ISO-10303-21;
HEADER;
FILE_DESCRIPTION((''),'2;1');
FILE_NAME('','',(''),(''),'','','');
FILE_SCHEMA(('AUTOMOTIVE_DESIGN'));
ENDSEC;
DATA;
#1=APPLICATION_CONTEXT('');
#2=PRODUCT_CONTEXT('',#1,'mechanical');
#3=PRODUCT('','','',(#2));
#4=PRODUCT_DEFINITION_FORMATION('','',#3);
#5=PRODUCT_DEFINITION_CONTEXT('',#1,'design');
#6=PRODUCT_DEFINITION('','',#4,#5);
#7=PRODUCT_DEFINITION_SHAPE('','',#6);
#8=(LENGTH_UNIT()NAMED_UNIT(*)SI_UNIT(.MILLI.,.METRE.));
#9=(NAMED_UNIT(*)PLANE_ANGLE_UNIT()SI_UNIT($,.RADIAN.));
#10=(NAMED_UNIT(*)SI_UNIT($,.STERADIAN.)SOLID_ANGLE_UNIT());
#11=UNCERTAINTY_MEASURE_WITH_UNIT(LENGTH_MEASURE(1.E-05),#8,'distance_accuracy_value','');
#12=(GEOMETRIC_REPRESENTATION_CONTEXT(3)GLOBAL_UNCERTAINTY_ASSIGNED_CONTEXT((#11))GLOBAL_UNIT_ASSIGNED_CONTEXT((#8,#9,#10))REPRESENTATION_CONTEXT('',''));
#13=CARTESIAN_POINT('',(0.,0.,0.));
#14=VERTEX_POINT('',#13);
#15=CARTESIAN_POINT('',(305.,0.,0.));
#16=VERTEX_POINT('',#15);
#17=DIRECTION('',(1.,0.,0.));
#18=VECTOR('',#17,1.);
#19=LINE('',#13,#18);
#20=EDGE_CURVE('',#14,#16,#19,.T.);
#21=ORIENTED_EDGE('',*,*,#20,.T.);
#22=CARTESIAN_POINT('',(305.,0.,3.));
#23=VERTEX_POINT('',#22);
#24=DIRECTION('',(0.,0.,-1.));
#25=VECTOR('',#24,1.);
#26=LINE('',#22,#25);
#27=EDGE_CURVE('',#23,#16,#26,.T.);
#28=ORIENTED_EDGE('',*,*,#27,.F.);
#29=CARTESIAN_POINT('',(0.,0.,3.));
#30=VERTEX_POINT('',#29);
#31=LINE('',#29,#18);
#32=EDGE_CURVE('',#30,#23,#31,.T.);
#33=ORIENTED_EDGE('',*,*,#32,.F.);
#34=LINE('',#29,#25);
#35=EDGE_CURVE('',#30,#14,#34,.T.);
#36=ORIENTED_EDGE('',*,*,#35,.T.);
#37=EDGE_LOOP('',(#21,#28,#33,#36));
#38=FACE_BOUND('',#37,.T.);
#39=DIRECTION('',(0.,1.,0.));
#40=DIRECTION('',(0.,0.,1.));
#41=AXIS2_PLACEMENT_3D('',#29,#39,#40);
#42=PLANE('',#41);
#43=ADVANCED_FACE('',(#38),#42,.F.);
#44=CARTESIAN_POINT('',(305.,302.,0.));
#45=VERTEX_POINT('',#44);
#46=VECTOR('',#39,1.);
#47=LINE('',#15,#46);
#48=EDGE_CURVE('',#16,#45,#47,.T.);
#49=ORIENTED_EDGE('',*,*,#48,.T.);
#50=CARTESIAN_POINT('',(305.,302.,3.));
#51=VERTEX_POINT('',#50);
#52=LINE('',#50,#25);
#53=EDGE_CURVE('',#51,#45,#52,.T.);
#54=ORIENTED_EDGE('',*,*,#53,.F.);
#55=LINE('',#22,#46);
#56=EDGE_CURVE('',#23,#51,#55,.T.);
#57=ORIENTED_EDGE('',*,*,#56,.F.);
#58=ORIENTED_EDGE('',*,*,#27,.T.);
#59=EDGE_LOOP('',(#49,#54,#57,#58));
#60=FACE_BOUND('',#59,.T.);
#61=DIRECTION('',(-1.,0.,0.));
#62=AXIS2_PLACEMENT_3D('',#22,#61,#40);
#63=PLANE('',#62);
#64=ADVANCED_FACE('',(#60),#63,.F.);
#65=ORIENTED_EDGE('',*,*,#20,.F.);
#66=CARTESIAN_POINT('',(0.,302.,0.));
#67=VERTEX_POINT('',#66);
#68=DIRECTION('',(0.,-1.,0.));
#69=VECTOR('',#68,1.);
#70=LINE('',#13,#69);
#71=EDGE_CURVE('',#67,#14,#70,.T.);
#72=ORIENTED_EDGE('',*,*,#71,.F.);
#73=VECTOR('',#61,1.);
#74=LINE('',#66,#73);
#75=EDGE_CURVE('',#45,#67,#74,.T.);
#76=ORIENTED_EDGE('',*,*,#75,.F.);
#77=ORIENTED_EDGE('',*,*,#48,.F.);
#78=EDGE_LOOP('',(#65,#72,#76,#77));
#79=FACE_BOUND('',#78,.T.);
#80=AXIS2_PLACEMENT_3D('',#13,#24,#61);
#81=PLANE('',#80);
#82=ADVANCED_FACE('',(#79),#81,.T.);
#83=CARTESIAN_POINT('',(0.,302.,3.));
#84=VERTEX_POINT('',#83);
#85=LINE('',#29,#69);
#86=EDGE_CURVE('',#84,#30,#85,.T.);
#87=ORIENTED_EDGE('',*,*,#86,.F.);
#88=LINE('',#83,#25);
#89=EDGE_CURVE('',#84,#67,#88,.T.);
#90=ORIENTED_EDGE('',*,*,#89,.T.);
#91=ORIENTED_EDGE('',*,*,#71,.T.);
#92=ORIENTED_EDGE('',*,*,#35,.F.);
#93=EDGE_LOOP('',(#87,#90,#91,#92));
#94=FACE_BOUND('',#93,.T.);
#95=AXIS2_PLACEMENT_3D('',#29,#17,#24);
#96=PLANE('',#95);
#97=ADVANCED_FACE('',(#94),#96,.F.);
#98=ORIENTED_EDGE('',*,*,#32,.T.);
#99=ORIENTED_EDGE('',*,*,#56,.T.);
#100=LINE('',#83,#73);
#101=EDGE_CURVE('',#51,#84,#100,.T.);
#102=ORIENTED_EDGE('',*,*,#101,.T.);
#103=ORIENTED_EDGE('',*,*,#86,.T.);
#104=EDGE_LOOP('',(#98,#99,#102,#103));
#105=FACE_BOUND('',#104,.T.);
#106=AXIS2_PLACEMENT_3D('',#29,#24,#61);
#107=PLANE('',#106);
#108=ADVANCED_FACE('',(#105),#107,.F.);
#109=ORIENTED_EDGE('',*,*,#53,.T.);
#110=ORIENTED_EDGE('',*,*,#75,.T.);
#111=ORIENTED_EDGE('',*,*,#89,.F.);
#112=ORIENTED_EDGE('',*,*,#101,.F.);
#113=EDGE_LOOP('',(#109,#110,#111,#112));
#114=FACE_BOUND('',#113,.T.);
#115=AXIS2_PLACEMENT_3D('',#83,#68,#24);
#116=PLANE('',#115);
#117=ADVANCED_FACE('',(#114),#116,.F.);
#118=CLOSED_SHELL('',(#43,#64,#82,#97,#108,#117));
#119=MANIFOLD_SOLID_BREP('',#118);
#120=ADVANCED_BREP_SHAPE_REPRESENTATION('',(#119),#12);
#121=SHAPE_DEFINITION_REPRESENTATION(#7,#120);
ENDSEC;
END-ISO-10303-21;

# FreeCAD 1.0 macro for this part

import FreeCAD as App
import Part
import Sketcher
from FreeCAD import Vector
Q = App.Units.Quantity

doc = App.newDocument("Part")
params = doc.addObject("Spreadsheet::Sheet", "Params")
for row, (alias, value) in enumerate([
    ("sketch1_width", "305 mm"),
    ("sketch1_height", "302 mm"),
    ("pad1_length", "3 mm"),
], start=1):
    params.set(f"A{row}", alias)
    params.set(f"B{row}", "=" + value)
    params.setAlias(f"B{row}", alias)

body = doc.addObject("PartDesign::Body", "Body")

sketch1 = body.newObject("Sketcher::SketchObject", "Sketch")
sketch1.AttachmentSupport = (doc.getObject("XY_Plane"), [""])
sketch1.MapMode = "FlatFace"
sketch1.addGeometry(Part.LineSegment(Vector(0, 302, 0), Vector(0, 0, 0)), False)
sketch1.addGeometry(Part.LineSegment(Vector(0, 0, 0), Vector(305, 0, 0)), False)
sketch1.addGeometry(Part.LineSegment(Vector(305, 0, 0), Vector(305, 302, 0)), False)
sketch1.addGeometry(Part.LineSegment(Vector(305, 302, 0), Vector(0, 302, 0)), False)
sketch1.addConstraint(Sketcher.Constraint("Coincident", 0, 2, 1, 1))
sketch1.addConstraint(Sketcher.Constraint("Coincident", 1, 2, 2, 1))
sketch1.addConstraint(Sketcher.Constraint("Coincident", 2, 2, 3, 1))
sketch1.addConstraint(Sketcher.Constraint("Coincident", 3, 2, 0, 1))
sketch1.addConstraint(Sketcher.Constraint("Vertical", 0))
sketch1.addConstraint(Sketcher.Constraint("Horizontal", 1))
sketch1.addConstraint(Sketcher.Constraint("Vertical", 2))
sketch1.addConstraint(Sketcher.Constraint("Horizontal", 3))
sketch1.addConstraint(Sketcher.Constraint("Coincident", 0, 2, -1, 1))
sketch1.addConstraint(Sketcher.Constraint("DistanceX", 1, 1, 1, 2, Q("305 mm")))
sketch1.addConstraint(Sketcher.Constraint("DistanceY", 0, 2, 0, 1, Q("302 mm")))
sketch1.setExpression("Constraints[9]", "Params.sketch1_width")
sketch1.setExpression("Constraints[10]", "Params.sketch1_height")
pad1 = body.newObject("PartDesign::Pad", "Pad")
pad1.Profile = sketch1
pad1.setExpression("Length", "Params.pad1_length")

doc.recompute()
